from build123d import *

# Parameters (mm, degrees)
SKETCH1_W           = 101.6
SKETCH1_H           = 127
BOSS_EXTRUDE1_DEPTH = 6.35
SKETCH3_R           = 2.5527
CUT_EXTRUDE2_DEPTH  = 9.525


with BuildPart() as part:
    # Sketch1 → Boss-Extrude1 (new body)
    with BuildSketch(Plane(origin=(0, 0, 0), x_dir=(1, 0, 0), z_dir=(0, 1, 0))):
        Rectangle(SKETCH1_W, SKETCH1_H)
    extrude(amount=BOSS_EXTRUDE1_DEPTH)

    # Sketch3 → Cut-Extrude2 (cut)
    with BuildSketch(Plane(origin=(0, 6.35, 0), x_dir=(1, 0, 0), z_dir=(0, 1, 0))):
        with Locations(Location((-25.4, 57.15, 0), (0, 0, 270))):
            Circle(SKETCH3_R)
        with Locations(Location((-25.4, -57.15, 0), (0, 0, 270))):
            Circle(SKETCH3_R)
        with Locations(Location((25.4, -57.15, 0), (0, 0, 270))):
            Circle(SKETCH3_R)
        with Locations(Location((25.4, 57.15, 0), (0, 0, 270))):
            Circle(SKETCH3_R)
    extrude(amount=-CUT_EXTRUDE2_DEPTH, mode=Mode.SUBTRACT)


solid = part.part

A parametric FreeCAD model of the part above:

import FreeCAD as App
import Part
import Sketcher
from FreeCAD import Vector
Q = App.Units.Quantity


def add_polygon(sketch, points):
    """Adds a closed chain of lines whose ends are joined by coincident constraints."""
    first, n = sketch.GeometryCount, len(points)
    for a, b in zip(points, points[1:] + points[:1]):
        sketch.addGeometry(Part.LineSegment(App.Vector(*a, 0), App.Vector(*b, 0)), False)
    for i in range(n):
        sketch.addConstraint(Sketcher.Constraint("Coincident", first + i, 2, first + (i + 1) % n, 1))

doc = App.newDocument("Part")
body = doc.addObject("PartDesign::Body", "Body")

# Sketch on XZ plane
sketch1 = body.newObject("Sketcher::SketchObject", "Sketch")
sketch1.AttachmentSupport = (doc.getObject("XZ_Plane"), [""])
sketch1.MapMode = "FlatFace"
add_polygon(sketch1, [(-50.8, -63.5), (-50.8, 63.5), (50.8, 63.5), (50.8, -63.5)])  # lines 0-3
sketch1.addConstraint([
    Sketcher.Constraint("Vertical", 0),
    Sketcher.Constraint("Horizontal", 1),
    Sketcher.Constraint("Vertical", 2),
    Sketcher.Constraint("Horizontal", 3),
    Sketcher.Constraint("Symmetric", 0, 2, 2, 2, -1, 1),
    Sketcher.Constraint("DistanceX", 1, 1, 1, 2, Q("4 in")),
    Sketcher.Constraint("DistanceY", 0, 1, 0, 2, Q("5 in")),
])
pad1 = body.newObject("PartDesign::Pad", "Pad")
pad1.Profile = sketch1
pad1.Length = Q("0.25 in")
pad1.Reversed = True

# Sketch on XZ plane
sketch2 = body.newObject("Sketcher::SketchObject", "Sketch001")
sketch2.AttachmentSupport = (doc.getObject("XZ_Plane"), [""])
sketch2.MapMode = "FlatFace"
sketch2.AttachmentOffset = App.Placement(Vector(0, 0, -0.25 * 25.4), App.Rotation())
sketch2.addGeometry([
    Part.Circle(Vector(-25.4, -57.15, 0), Vector(0, 0, 1), 2.5527),
    Part.Circle(Vector(-25.4, 57.15, 0), Vector(0, 0, 1), 2.5527),
    Part.Circle(Vector(25.4, 57.15, 0), Vector(0, 0, 1), 2.5527),
    Part.Circle(Vector(25.4, -57.15, 0), Vector(0, 0, 1), 2.5527),
], False)
sketch2.addConstraint([
    Sketcher.Constraint("Equal", 0, 1),
    Sketcher.Constraint("Equal", 1, 2),
    Sketcher.Constraint("Equal", 2, 3),
    Sketcher.Constraint("Symmetric", 0, 3, 2, 3, -1, 1),
    Sketcher.Constraint("Symmetric", 1, 3, 3, 3, -1, 1),
    Sketcher.Constraint("Symmetric", 1, 3, 2, 3, -2),
    Sketcher.Constraint("Diameter", 0, Q("0.201 in")),
    Sketcher.Constraint("DistanceX", 0, 3, -1, 1, Q("1 in")),
    Sketcher.Constraint("DistanceY", 0, 3, 1, 3, Q("4.5 in")),
])
pocket1 = body.newObject("PartDesign::Pocket", "Pocket")
pocket1.Profile = sketch2
pocket1.Length = Q("0.375 in")
pocket1.Reversed = True

doc.recompute()
